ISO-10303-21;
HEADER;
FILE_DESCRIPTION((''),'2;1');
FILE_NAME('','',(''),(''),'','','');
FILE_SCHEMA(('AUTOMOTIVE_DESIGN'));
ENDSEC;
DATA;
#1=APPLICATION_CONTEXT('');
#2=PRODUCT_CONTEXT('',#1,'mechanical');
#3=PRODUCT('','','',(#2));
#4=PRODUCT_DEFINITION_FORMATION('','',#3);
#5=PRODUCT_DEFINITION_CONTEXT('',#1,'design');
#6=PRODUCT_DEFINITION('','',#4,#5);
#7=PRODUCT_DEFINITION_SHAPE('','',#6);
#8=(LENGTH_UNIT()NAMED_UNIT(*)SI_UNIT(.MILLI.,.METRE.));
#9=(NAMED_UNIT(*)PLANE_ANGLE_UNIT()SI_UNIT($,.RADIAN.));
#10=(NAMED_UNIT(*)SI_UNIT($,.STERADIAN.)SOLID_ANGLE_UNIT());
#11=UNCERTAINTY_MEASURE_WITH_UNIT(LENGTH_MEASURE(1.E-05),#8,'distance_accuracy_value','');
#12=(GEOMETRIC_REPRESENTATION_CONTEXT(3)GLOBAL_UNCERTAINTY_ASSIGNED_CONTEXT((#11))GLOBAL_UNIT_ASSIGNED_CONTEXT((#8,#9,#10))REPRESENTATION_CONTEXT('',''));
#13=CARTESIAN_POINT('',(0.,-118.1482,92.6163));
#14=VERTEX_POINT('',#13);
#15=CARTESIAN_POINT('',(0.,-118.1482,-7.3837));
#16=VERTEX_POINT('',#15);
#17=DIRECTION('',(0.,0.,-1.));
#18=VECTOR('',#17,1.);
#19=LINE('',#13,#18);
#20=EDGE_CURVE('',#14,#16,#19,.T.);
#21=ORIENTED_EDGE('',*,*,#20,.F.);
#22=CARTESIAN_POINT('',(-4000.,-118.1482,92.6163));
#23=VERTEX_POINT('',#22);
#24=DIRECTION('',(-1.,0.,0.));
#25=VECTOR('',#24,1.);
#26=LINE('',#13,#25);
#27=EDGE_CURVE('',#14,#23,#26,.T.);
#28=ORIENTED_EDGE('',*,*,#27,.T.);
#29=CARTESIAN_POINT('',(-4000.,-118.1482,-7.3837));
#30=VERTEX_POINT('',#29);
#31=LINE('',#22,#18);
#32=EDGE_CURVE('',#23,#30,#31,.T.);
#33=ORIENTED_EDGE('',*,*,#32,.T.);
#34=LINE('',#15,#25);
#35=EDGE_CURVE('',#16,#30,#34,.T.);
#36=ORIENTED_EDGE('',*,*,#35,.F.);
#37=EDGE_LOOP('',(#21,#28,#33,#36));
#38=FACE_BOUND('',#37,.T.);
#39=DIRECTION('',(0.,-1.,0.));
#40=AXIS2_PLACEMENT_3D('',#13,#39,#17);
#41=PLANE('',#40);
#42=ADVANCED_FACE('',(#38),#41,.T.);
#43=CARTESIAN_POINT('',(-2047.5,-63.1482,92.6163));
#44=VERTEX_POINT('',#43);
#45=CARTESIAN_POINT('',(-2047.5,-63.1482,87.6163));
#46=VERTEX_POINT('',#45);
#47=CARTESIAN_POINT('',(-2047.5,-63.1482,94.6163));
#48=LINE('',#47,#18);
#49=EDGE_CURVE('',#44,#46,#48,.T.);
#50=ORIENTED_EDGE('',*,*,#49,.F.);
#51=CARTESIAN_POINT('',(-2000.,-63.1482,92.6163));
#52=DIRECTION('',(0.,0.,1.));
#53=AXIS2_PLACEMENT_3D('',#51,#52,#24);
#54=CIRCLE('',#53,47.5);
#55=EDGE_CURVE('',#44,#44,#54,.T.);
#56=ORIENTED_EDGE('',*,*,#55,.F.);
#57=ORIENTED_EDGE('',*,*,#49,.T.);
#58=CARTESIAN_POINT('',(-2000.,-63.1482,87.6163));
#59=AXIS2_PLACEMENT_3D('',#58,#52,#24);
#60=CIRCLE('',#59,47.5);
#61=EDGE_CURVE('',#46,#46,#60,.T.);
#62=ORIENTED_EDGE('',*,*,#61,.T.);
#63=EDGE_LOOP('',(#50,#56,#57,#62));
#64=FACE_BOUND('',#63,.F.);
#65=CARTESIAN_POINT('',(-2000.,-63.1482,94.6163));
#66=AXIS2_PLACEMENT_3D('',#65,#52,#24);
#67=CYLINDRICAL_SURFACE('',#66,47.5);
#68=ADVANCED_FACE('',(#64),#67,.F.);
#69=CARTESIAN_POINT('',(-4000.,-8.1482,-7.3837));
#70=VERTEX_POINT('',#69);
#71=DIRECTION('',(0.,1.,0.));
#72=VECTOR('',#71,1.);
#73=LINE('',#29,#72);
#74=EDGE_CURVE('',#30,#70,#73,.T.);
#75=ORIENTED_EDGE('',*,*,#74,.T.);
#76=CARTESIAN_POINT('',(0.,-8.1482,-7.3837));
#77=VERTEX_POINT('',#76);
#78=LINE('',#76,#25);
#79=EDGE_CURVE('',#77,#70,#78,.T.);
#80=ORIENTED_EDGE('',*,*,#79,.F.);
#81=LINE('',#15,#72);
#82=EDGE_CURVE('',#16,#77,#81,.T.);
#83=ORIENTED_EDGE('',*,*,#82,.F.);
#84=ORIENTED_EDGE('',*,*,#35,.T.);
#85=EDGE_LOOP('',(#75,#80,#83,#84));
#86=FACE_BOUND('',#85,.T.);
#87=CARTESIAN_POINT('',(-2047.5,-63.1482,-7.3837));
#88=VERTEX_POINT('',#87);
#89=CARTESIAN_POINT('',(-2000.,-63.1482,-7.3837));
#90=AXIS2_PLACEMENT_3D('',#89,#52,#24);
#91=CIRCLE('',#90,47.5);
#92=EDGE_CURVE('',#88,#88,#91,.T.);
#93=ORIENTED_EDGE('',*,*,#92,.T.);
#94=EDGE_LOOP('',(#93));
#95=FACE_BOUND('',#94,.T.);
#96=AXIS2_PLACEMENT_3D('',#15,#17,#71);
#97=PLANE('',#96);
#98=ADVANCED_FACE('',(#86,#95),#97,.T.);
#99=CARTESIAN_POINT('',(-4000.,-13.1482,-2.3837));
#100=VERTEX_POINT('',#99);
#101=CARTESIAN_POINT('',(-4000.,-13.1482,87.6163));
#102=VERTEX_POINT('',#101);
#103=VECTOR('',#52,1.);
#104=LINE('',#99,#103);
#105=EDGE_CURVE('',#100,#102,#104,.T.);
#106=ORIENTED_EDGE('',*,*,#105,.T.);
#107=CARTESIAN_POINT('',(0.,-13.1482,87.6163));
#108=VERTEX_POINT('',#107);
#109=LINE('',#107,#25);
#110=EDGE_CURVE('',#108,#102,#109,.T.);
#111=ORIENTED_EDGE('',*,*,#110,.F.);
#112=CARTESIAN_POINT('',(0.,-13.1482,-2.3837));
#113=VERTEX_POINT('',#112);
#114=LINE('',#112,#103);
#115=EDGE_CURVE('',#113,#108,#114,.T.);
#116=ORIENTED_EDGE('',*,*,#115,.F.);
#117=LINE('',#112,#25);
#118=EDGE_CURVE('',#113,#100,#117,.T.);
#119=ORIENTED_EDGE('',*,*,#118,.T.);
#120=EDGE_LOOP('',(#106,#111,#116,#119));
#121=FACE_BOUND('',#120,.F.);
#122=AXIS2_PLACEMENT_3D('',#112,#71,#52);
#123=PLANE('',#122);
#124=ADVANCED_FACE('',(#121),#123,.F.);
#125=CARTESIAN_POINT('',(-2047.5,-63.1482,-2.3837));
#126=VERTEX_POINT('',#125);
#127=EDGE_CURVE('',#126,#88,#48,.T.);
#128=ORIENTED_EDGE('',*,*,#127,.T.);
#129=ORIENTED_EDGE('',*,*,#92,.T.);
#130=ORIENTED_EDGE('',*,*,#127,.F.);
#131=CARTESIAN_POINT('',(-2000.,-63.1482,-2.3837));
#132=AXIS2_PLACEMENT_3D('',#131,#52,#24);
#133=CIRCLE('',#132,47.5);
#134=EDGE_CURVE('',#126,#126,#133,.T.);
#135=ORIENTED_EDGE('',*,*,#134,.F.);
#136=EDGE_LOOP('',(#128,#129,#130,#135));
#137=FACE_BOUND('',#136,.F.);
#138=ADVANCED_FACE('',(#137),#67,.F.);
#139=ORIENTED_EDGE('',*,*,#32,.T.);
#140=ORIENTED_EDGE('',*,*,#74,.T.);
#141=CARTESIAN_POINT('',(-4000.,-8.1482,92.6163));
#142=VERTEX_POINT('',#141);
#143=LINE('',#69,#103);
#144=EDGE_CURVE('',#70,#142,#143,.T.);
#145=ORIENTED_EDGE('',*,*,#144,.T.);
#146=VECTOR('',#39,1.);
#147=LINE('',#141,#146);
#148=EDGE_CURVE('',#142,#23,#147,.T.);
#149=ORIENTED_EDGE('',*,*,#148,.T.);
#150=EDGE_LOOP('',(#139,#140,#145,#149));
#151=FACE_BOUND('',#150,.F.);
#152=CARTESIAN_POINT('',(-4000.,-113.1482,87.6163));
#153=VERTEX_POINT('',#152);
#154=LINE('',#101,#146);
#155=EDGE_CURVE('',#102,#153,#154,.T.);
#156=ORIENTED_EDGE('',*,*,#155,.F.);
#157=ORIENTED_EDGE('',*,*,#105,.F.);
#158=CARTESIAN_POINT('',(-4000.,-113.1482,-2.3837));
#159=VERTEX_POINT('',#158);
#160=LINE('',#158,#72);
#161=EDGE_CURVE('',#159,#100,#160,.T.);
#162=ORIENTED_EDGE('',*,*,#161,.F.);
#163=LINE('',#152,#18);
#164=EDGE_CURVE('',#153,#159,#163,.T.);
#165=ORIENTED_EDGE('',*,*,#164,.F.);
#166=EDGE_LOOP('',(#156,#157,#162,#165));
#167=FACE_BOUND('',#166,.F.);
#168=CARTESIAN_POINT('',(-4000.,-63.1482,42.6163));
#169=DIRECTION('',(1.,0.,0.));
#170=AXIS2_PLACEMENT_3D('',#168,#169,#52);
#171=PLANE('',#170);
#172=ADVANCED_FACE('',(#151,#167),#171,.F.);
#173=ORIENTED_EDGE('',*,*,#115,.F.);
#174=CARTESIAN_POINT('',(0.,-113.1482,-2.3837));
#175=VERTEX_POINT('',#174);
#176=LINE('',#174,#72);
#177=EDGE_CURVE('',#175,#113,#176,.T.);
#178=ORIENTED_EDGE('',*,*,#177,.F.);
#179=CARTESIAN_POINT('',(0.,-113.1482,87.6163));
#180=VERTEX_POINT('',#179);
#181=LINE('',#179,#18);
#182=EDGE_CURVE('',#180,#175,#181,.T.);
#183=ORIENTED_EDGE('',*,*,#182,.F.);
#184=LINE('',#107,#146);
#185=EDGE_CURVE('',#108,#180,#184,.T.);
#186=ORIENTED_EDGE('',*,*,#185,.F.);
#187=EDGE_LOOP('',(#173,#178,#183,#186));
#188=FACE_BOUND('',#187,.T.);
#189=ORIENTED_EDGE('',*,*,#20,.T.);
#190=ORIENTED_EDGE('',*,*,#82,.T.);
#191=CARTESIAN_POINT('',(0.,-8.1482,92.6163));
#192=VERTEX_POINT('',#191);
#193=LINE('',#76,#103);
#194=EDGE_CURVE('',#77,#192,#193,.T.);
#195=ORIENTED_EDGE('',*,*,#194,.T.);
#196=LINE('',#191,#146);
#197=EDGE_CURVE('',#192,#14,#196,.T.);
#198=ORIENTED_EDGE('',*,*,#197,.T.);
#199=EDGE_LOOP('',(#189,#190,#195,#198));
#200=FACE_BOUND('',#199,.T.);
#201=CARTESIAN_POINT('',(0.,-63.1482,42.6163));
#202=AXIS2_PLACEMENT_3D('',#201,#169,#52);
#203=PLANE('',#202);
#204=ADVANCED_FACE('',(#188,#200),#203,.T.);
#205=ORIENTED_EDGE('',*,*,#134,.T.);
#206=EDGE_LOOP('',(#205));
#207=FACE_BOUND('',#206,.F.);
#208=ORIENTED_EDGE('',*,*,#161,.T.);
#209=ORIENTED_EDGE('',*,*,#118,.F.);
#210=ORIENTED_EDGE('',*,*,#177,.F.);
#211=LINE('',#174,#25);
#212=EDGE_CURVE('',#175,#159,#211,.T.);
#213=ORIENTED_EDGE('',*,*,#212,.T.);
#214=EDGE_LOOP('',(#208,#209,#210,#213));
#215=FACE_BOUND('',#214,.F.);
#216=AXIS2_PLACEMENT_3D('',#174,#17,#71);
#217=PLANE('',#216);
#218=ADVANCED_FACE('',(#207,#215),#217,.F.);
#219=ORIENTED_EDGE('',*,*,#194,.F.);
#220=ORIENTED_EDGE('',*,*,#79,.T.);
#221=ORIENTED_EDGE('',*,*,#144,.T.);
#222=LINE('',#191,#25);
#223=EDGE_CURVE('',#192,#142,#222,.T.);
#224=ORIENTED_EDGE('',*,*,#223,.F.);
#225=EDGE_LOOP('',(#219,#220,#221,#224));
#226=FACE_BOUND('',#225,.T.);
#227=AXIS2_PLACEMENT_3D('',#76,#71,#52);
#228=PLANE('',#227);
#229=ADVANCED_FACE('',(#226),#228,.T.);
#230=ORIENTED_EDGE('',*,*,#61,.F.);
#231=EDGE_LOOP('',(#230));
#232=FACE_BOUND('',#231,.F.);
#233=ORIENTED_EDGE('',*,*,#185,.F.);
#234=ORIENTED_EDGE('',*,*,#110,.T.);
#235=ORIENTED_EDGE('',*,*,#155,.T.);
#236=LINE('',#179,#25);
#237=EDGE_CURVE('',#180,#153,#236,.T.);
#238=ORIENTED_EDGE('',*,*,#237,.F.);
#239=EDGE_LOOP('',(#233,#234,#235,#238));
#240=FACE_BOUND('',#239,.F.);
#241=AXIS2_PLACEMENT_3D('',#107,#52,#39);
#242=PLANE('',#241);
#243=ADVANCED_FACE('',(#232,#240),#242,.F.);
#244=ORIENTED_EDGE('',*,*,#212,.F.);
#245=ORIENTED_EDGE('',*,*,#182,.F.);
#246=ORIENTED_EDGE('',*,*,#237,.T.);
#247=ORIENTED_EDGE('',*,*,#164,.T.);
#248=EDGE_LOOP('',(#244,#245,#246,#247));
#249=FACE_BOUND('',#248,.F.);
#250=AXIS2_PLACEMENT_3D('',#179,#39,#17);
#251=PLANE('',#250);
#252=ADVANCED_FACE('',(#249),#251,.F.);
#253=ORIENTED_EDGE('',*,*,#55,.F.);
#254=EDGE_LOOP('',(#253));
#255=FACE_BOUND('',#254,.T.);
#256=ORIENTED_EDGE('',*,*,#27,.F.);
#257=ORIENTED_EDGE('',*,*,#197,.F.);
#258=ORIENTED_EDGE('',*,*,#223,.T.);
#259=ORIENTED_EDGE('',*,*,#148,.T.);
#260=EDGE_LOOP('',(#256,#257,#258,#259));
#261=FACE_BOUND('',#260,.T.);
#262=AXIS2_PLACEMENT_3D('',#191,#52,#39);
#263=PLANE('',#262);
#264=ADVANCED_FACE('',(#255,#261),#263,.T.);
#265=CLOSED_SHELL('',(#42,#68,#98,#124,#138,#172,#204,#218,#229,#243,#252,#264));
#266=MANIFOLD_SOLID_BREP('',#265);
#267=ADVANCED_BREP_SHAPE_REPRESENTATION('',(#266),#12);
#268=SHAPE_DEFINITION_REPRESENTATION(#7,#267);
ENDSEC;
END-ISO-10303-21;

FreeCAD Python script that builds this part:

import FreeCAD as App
import Part
import Sketcher

V = App.Vector


def add_polygon(sketch, points):
    """Adds a closed chain of lines whose ends are joined by coincident constraints."""
    first, n = sketch.GeometryCount, len(points)
    for a, b in zip(points, points[1:] + points[:1]):
        sketch.addGeometry(Part.LineSegment(App.Vector(*a, 0), App.Vector(*b, 0)), False)
    for i in range(n):
        sketch.addConstraint(Sketcher.Constraint("Coincident", first + i, 2, first + (i + 1) % n, 1))

doc = App.newDocument("Part")
body = doc.addObject("PartDesign::Body", "Body")

sketch1 = body.newObject("Sketcher::SketchObject", "Sketch")
sketch1.AttachmentSupport = (doc.getObject("YZ_Plane"), [""])
sketch1.MapMode = "FlatFace"
add_polygon(sketch1, [(-118, 93), (-118, -7), (-8, -7), (-8, 93)])
add_polygon(sketch1, [(-13, -2), (-113, -2), (-113, 88), (-13, 88)])
sketch1.addConstraint([
    Sketcher.Constraint("Vertical", 0),
    Sketcher.Constraint("Horizontal", 1),
    Sketcher.Constraint("Vertical", 2),
    Sketcher.Constraint("Horizontal", 3),
    Sketcher.Constraint("Horizontal", 4),
    Sketcher.Constraint("Vertical", 5),
    Sketcher.Constraint("Horizontal", 6),
    Sketcher.Constraint("Vertical", 7),
    Sketcher.Constraint("Equal", 6, 0),
    Sketcher.Constraint("DistanceX", 1, 1, 1, 2, 110.0),
    Sketcher.Constraint("DistanceX", 4, 2, 4, 1, 100.0),
    Sketcher.Constraint("DistanceY", 5, 1, 5, 2, 90.0),
    Sketcher.Constraint("DistanceX", 0, 2, 4, 2, 5.0),
    Sketcher.Constraint("DistanceY", 0, 2, 4, 2, 5.0),
    Sketcher.Constraint("DistanceX", 4, 2, -1, 1, 113.1482),
    Sketcher.Constraint("DistanceY", 0, 2, -1, 1, 7.3837),
])
pad1 = body.newObject("PartDesign::Pad", "Pad")
pad1.Profile = sketch1
pad1.Length = 4000
pad1.Reversed = True

sketch2 = body.newObject("Sketcher::SketchObject", "Sketch001")
sketch2.AttachmentSupport = (doc.getObject("XY_Plane"), [""])
sketch2.MapMode = "FlatFace"
sketch2.AttachmentOffset = App.Placement(V(0, 0, 94.6163), App.Rotation())
sketch2.addGeometry(Part.Circle(V(-2000, -63, 0), V(0, 0, 1), 48), False)
sketch2.addConstraint([
    Sketcher.Constraint("Diameter", 0, 95.0),
    Sketcher.Constraint("DistanceX", 0, 3, -1, 1, 2000.0),
    Sketcher.Constraint("DistanceY", 0, 3, -1, 1, 63.1482),
])
pocket1 = body.newObject("PartDesign::Pocket", "Pocket")
pocket1.Profile = sketch2
pocket1.Type = "ThroughAll"

doc.recompute()
